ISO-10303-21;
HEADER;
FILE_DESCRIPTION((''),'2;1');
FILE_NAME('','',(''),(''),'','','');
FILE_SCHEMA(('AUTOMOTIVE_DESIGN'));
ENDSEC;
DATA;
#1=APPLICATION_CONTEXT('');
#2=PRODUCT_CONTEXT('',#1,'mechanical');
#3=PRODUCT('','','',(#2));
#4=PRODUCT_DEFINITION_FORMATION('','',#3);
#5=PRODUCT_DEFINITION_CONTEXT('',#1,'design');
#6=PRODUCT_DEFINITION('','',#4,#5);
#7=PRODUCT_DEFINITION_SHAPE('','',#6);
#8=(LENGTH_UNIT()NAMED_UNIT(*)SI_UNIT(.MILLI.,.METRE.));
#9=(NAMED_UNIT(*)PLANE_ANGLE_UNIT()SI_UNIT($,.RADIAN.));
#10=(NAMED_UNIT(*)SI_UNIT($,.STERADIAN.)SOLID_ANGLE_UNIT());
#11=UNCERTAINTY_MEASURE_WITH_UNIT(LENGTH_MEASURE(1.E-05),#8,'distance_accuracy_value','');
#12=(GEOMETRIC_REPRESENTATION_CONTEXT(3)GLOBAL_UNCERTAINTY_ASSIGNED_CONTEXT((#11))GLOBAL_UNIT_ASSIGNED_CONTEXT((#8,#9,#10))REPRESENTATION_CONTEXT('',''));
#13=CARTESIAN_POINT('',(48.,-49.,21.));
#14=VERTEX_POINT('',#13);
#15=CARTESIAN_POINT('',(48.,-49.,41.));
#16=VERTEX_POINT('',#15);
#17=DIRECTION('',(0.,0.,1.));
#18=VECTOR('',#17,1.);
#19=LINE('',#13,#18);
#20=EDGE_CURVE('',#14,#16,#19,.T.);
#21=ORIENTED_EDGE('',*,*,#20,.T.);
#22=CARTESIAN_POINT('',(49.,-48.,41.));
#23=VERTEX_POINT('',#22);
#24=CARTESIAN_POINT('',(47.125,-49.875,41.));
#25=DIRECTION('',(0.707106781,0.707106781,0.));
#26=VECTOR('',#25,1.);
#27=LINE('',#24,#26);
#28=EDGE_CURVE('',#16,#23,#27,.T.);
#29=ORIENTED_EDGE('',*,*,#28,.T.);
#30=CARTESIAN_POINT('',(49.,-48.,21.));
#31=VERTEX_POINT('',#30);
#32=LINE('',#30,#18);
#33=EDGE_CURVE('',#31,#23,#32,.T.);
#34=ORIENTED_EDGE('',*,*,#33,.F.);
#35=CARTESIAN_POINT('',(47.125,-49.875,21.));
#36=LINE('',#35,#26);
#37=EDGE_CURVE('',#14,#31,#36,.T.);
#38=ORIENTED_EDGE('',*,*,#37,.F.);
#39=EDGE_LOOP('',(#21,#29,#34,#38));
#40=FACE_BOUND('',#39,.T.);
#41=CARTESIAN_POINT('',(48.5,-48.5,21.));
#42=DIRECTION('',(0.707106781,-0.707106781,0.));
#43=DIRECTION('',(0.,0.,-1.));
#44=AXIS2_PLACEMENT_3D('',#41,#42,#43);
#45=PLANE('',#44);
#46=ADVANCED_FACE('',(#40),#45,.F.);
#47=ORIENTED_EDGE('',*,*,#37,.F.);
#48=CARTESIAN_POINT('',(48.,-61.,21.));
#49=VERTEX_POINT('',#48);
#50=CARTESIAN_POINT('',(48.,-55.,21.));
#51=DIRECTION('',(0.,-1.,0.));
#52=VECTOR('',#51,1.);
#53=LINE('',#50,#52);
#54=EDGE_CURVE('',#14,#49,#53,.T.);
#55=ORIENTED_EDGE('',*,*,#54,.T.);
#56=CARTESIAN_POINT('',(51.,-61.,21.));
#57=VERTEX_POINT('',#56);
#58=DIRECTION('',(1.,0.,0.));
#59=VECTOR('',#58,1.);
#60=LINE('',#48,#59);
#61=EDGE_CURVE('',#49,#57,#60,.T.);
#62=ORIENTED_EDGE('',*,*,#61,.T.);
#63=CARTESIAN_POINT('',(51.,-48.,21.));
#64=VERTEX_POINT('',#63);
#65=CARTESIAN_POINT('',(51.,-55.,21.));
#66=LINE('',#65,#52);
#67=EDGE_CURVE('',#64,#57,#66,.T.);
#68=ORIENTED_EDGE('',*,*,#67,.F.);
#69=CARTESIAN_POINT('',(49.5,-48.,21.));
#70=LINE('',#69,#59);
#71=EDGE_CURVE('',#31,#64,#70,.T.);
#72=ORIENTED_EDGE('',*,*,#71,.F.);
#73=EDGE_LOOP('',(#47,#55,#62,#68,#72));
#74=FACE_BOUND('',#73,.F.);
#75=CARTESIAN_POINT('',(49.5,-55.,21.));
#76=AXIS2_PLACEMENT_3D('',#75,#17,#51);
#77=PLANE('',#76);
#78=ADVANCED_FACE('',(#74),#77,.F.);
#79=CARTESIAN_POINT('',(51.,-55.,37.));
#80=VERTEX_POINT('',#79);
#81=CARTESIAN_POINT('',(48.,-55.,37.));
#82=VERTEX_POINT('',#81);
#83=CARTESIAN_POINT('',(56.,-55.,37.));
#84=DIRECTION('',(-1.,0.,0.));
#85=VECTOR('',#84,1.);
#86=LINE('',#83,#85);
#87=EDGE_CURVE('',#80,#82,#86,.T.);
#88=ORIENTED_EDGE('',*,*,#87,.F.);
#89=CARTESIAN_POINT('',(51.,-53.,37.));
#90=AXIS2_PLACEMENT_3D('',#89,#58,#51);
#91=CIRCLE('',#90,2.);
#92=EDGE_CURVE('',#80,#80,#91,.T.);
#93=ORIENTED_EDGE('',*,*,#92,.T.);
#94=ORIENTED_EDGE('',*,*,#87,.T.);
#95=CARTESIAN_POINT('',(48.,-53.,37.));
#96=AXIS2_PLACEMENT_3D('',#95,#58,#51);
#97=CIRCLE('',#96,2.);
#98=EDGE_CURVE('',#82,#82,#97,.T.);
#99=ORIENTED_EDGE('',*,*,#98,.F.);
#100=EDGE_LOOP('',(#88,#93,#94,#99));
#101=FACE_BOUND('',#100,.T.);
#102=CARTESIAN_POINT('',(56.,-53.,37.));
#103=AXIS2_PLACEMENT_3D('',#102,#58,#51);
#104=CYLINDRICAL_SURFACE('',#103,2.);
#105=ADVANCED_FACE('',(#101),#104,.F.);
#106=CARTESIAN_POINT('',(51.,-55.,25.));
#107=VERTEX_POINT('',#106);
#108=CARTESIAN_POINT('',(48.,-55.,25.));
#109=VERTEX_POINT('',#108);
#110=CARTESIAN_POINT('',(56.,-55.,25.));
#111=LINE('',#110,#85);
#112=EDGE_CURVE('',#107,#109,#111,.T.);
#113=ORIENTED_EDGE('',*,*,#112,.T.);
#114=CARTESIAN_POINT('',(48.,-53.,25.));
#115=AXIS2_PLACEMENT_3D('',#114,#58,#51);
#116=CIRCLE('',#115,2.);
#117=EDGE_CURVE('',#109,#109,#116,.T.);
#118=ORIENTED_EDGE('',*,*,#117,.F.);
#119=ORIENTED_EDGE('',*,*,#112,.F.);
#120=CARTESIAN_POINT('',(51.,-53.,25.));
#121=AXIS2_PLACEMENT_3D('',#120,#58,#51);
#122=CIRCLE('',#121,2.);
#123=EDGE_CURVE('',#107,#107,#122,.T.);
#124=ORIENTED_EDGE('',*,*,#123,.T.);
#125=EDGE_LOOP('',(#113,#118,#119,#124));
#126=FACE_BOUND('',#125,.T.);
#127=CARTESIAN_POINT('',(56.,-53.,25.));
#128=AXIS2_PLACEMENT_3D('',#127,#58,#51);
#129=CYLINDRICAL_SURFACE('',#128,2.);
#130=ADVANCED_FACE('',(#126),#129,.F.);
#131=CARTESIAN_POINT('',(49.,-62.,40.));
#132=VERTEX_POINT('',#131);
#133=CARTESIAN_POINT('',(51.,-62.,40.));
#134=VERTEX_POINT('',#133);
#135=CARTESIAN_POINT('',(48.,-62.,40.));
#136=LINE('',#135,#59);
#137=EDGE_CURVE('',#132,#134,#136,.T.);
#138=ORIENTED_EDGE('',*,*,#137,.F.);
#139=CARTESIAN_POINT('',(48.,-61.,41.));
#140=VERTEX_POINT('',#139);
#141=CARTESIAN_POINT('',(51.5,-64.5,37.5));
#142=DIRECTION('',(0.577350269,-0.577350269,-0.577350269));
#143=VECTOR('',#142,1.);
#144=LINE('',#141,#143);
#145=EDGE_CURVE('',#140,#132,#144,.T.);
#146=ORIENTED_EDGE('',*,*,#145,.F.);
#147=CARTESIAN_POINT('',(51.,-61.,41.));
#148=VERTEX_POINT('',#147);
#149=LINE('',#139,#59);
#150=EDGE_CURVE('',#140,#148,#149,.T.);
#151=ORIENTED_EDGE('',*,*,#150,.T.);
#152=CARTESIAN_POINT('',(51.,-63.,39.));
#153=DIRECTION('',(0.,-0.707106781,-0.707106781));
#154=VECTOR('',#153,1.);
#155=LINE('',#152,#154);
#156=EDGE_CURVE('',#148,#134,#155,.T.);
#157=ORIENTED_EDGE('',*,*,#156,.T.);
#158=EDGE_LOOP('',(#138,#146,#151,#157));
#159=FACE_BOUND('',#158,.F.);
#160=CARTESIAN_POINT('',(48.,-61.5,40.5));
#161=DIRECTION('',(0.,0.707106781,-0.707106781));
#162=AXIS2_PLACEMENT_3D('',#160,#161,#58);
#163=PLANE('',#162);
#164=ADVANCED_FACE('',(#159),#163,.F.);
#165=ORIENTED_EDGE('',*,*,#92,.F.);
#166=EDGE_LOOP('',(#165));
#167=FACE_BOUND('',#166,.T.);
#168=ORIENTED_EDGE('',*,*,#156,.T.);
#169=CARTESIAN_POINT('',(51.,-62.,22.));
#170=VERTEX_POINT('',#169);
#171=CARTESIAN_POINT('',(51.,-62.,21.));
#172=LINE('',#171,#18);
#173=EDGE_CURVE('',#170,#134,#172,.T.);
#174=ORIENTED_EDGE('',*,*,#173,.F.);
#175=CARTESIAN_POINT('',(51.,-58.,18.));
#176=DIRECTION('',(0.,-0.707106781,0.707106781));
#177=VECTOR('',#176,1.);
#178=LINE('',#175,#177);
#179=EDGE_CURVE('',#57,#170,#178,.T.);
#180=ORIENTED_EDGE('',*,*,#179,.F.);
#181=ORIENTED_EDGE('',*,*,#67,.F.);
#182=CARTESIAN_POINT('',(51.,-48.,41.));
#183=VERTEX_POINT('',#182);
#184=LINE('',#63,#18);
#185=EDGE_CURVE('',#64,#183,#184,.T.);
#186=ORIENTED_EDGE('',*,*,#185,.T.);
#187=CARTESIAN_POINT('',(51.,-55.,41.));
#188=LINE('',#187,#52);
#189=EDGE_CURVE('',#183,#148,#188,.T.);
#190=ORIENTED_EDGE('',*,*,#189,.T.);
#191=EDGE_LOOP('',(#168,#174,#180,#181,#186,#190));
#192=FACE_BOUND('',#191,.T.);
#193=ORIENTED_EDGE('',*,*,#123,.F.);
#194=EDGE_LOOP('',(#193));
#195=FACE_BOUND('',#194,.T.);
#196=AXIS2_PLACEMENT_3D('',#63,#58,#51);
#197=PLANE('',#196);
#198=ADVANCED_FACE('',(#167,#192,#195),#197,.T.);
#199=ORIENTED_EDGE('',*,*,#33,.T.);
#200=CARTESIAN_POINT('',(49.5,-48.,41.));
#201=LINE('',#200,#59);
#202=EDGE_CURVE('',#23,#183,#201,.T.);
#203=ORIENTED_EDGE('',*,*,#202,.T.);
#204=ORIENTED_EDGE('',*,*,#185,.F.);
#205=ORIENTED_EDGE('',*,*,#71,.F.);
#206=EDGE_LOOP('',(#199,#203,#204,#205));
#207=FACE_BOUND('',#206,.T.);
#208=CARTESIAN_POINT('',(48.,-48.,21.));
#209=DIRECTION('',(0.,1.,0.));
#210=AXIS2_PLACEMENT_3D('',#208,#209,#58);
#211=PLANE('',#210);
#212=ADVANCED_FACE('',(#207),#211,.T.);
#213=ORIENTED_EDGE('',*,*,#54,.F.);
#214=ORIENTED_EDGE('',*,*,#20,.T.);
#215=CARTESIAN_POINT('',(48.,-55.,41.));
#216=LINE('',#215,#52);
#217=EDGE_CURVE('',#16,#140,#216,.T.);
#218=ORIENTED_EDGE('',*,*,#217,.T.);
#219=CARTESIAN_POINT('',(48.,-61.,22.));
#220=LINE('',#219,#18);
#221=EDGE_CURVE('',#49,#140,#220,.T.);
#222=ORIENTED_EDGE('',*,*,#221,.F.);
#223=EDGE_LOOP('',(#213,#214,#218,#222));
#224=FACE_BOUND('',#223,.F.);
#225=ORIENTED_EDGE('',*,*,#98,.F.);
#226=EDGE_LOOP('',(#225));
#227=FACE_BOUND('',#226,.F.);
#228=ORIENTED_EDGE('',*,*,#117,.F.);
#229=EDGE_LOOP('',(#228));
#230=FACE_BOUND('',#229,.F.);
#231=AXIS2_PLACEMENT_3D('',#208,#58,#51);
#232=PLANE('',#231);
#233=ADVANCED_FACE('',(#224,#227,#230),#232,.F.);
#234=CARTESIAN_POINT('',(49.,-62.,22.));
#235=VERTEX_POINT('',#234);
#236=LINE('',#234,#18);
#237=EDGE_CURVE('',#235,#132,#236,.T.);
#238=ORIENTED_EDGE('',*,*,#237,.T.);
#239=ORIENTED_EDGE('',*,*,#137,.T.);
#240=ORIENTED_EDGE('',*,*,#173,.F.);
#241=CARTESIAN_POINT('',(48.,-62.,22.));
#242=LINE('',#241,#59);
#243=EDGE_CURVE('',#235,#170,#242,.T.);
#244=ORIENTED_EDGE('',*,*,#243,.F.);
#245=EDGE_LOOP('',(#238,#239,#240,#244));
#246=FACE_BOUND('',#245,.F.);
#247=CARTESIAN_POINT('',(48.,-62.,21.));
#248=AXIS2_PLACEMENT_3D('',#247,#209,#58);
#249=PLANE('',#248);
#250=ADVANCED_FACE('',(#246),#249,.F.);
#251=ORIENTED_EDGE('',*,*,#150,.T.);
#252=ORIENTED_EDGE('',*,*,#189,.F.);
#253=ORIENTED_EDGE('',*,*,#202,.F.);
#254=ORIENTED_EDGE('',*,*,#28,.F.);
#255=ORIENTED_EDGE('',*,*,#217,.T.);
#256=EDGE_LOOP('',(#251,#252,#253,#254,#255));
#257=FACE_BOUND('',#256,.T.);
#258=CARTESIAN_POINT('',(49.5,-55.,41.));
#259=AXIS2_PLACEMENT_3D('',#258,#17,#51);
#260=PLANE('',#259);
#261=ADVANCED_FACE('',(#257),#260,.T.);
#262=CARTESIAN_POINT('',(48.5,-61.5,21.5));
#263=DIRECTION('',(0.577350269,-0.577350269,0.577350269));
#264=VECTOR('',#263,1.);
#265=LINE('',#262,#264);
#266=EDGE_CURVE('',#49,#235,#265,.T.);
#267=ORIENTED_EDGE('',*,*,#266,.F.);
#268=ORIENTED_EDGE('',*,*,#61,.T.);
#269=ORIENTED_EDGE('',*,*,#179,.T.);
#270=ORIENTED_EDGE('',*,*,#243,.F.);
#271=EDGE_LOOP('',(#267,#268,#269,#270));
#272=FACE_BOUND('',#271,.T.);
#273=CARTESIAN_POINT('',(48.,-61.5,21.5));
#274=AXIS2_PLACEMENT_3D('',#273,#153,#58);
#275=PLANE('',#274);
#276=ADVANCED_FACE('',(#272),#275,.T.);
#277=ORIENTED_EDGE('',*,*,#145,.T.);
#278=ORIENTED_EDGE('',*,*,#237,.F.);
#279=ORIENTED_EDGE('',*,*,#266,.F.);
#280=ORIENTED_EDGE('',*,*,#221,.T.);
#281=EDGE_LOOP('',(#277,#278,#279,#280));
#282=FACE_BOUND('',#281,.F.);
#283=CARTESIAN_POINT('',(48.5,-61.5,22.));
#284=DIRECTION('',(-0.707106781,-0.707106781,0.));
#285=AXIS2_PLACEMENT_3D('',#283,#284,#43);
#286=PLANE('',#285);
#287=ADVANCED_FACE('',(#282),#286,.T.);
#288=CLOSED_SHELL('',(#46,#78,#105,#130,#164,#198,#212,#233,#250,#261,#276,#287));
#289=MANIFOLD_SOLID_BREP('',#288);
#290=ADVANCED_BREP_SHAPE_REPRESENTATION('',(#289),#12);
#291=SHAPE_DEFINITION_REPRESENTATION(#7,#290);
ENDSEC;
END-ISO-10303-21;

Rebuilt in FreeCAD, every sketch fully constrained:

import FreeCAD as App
import Part
import Sketcher
from FreeCAD import Vector


def edges_at(feature, points):
    """Names of the edges that pass closest to the given points."""
    edges = feature.Shape.Edges
    near = lambda p: min(range(len(edges)), key=lambda i: edges[i].distToShape(Part.Vertex(*p))[0])
    return sorted({f"Edge{near(p) + 1}" for p in points})


def add_polygon(sketch, points):
    """Adds a closed chain of lines whose ends are joined by coincident constraints."""
    first, n = sketch.GeometryCount, len(points)
    for a, b in zip(points, points[1:] + points[:1]):
        sketch.addGeometry(Part.LineSegment(App.Vector(*a, 0), App.Vector(*b, 0)), False)
    for i in range(n):
        sketch.addConstraint(Sketcher.Constraint("Coincident", first + i, 2, first + (i + 1) % n, 1))

doc = App.newDocument("Part")
params = doc.addObject("Spreadsheet::Sheet", "Params")
for row, (alias, value) in enumerate([
    ("sketch1_diameter", "4 mm"),
    ("pad1_length", "10 mm"),
    ("sketch2_diameter", "4 mm"),
    ("pad2_length", "10 mm"),
    ("sketch3_width", "14 mm"),
    ("sketch3_height", "3 mm"),
    ("pad3_length", "20 mm"),
    ("chamfer_size", "1 mm"),
    ("chamfer2_size", "1 mm"),
], start=1):
    params.set(f"A{row}", alias)
    params.set(f"B{row}", "=" + value)
    params.setAlias(f"B{row}", alias)

body = doc.addObject("PartDesign::Body", "Body")

sketch1 = doc.addObject("Sketcher::SketchObject", "Sketch")
body.addObject(sketch1)
sketch1.AttachmentSupport = (doc.YZ_Plane, [""])
sketch1.MapMode = "FlatFace"
sketch1.AttachmentOffset = App.Placement(Vector(0, 0, 63), App.Rotation())
sketch1.addGeometry(Part.Circle(Vector(-53, 25, 0), Vector(0, 0, 1), 2), False)
sketch1.addConstraint([
    Sketcher.Constraint("Diameter", 0, 4.0),
    Sketcher.Constraint("DistanceX", 0, 3, -1, 1, 53.0),
    Sketcher.Constraint("DistanceY", -1, 1, 0, 3, 25.0),
])
sketch1.setExpression("Constraints[0]", "Params.sketch1_diameter")
pad1 = doc.addObject("PartDesign::Pad", "Pad")
body.addObject(pad1)
pad1.Profile = sketch1
pad1.setExpression("Length", "Params.pad1_length")
pad1.Reversed = True
body2 = doc.addObject("PartDesign::Body", "Body001")
body2.AllowCompound = True

sketch2 = doc.addObject("Sketcher::SketchObject", "Sketch001")
body2.addObject(sketch2)
sketch2.AttachmentSupport = (doc.getObject("YZ_Plane001"), [""])
sketch2.MapMode = "FlatFace"
sketch2.AttachmentOffset = App.Placement(Vector(0, 0, 63), App.Rotation())
sketch2.addGeometry(Part.Circle(Vector(-53, 37, 0), Vector(0, 0, 1), 2), False)
sketch2.addConstraint([
    Sketcher.Constraint("Diameter", 0, 4.0),
    Sketcher.Constraint("DistanceX", 0, 3, -1, 1, 53.0),
    Sketcher.Constraint("DistanceY", -1, 1, 0, 3, 37.0),
])
sketch2.setExpression("Constraints[0]", "Params.sketch2_diameter")
pad2 = doc.addObject("PartDesign::Pad", "Pad001")
body2.addObject(pad2)
pad2.Profile = sketch2
pad2.setExpression("Length", "Params.pad2_length")
pad2.Reversed = True
doc.recompute()

boolean = doc.addObject("PartDesign::Boolean", "Boolean")
body2.addObject(boolean)
boolean.Type = "Fuse"
boolean.addObjects([body])
body3 = doc.addObject("PartDesign::Body", "Body002")

sketch3 = doc.addObject("Sketcher::SketchObject", "Sketch002")
body3.addObject(sketch3)
sketch3.AttachmentSupport = (doc.getObject("XY_Plane002"), [""])
sketch3.MapMode = "FlatFace"
add_polygon(sketch3, [(0, 3), (0, 0), (14, 0), (14, 3)])
sketch3.addConstraint([
    Sketcher.Constraint("Vertical", 0),
    Sketcher.Constraint("Horizontal", 1),
    Sketcher.Constraint("Vertical", 2),
    Sketcher.Constraint("Horizontal", 3),
    Sketcher.Constraint("Coincident", 0, 2, -1, 1),
    Sketcher.Constraint("DistanceX", 1, 1, 1, 2, 14.0),
    Sketcher.Constraint("DistanceY", 0, 2, 0, 1, 3.0),
])
sketch3.setExpression("Constraints[9]", "Params.sketch3_width")
sketch3.setExpression("Constraints[10]", "Params.sketch3_height")
pad3 = doc.addObject("PartDesign::Pad", "Pad002")
body3.addObject(pad3)
pad3.Profile = sketch3
pad3.setExpression("Length", "Params.pad3_length")
body4 = doc.addObject("PartDesign::Body", "Body003")
doc.recompute()

body3.Placement = App.Placement(Vector(55, -48, 21), App.Rotation(Vector(0, 0, 1), 270))
boolean2 = doc.addObject("PartDesign::Boolean", "Boolean001")
body4.addObject(boolean2)
boolean2.Type = "Fuse"
boolean2.addObjects([body3])
doc.recompute()

boolean3 = doc.addObject("PartDesign::Boolean", "Boolean002")
body4.addObject(boolean3)
boolean3.Type = "Cut"
boolean3.addObjects([body2])
body5 = doc.addObject("PartDesign::Body", "Body004")
doc.recompute()

body4.Placement = App.Placement(Vector(-7, 0, 0), App.Rotation(Vector(0, 0, 1), 0))
boolean4 = doc.addObject("PartDesign::Boolean", "Boolean003")
body5.addObject(boolean4)
boolean4.Type = "Fuse"
boolean4.addObjects([body4])
doc.recompute()

chamfer = doc.addObject("PartDesign::Chamfer", "Chamfer")
body5.addObject(chamfer)
chamfer.Base = (boolean4, edges_at(boolean4, [(49.5, -62, 41), (49.5, -62, 21)]))
chamfer.setExpression("Size", "Params.chamfer_size")
doc.recompute()

chamfer2 = doc.addObject("PartDesign::Chamfer", "Chamfer001")
body5.addObject(chamfer2)
chamfer2.Base = (chamfer, edges_at(chamfer, [(48, -48, 31), (48, -62, 31)]))
chamfer2.setExpression("Size", "Params.chamfer2_size")

doc.recompute()
